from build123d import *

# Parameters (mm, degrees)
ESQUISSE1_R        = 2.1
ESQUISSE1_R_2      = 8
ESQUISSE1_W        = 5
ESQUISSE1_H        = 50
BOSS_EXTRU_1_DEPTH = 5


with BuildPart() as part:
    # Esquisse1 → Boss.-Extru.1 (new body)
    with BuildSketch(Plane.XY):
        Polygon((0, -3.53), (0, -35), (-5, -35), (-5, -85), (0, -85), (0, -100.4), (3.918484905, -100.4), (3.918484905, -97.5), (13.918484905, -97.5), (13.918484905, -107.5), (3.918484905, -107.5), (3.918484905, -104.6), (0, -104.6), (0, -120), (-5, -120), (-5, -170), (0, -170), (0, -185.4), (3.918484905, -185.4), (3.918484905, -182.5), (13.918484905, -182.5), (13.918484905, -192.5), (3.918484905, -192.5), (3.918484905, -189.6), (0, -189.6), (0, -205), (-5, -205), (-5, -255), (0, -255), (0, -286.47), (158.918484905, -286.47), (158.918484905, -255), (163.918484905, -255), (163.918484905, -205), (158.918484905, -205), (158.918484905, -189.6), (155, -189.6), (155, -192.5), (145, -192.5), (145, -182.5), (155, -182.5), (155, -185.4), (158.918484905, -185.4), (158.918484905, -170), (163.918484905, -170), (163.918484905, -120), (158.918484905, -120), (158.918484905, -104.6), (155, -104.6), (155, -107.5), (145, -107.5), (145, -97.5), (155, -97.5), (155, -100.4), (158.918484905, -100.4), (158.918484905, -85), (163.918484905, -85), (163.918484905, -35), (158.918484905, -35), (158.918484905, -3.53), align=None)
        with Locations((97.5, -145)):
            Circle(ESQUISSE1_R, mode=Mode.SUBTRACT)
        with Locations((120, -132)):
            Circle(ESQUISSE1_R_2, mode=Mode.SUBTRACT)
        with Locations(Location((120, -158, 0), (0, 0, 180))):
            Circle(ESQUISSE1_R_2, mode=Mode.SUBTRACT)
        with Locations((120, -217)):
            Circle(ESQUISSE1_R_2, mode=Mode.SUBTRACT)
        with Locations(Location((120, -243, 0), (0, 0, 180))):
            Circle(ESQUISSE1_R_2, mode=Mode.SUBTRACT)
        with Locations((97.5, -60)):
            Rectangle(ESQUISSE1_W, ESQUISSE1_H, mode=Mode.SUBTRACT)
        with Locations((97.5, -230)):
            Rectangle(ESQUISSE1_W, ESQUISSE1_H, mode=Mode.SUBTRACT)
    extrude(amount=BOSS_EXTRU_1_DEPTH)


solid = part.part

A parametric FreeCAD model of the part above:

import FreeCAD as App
import Part
import Sketcher
from FreeCAD import Vector

doc = App.newDocument("Part")
body = doc.addObject("PartDesign::Body", "Body")

# Sketch on XY plane
sketch1 = doc.addObject("Sketcher::SketchObject", "Sketch")
body.addObject(sketch1)
sketch1.AttachmentSupport = (doc.XY_Plane, [""])
sketch1.MapMode = "FlatFace"
sketch1.addGeometry([
    Part.LineSegment(Vector(0, -3.5, 0), Vector(0, -35, 0)),  # 0
    Part.LineSegment(Vector(0, -35, 0), Vector(-5, -35, 0)),  # 1
    Part.LineSegment(Vector(-5, -35, 0), Vector(-5, -85, 0)),  # 2
    Part.LineSegment(Vector(-5, -85, 0), Vector(0, -85, 0)),  # 3
    Part.LineSegment(Vector(0, -85, 0), Vector(0, -100.4, 0)),  # 4
    Part.LineSegment(Vector(0, -100.4, 0), Vector(3.9, -100.4, 0)),  # 5
    Part.LineSegment(Vector(3.9, -100.4, 0), Vector(3.9, -97.5, 0)),  # 6
    Part.LineSegment(Vector(3.9, -97.5, 0), Vector(13.9, -97.5, 0)),  # 7
    Part.LineSegment(Vector(13.9, -97.5, 0), Vector(13.9, -107.5, 0)),  # 8
    Part.LineSegment(Vector(13.9, -107.5, 0), Vector(3.9, -107.5, 0)),  # 9
    Part.LineSegment(Vector(3.9, -107.5, 0), Vector(3.9, -104.6, 0)),  # 10
    Part.LineSegment(Vector(3.9, -104.6, 0), Vector(0, -104.6, 0)),  # 11
    Part.LineSegment(Vector(0, -104.6, 0), Vector(0, -120, 0)),  # 12
    Part.LineSegment(Vector(0, -120, 0), Vector(-5, -120, 0)),  # 13
    Part.LineSegment(Vector(-5, -120, 0), Vector(-5, -170, 0)),  # 14
    Part.LineSegment(Vector(-5, -170, 0), Vector(0, -170, 0)),  # 15
    Part.LineSegment(Vector(0, -170, 0), Vector(0, -185.4, 0)),  # 16
    Part.LineSegment(Vector(0, -185.4, 0), Vector(3.9, -185.4, 0)),  # 17
    Part.LineSegment(Vector(3.9, -185.4, 0), Vector(3.9, -182.5, 0)),  # 18
    Part.LineSegment(Vector(3.9, -182.5, 0), Vector(13.9, -182.5, 0)),  # 19
    Part.LineSegment(Vector(13.9, -182.5, 0), Vector(13.9, -192.5, 0)),  # 20
    Part.LineSegment(Vector(13.9, -192.5, 0), Vector(3.9, -192.5, 0)),  # 21
    Part.LineSegment(Vector(3.9, -192.5, 0), Vector(3.9, -189.6, 0)),  # 22
    Part.LineSegment(Vector(3.9, -189.6, 0), Vector(0, -189.6, 0)),  # 23
    Part.LineSegment(Vector(0, -189.6, 0), Vector(0, -205, 0)),  # 24
    Part.LineSegment(Vector(0, -205, 0), Vector(-5, -205, 0)),  # 25
    Part.LineSegment(Vector(-5, -205, 0), Vector(-5, -255, 0)),  # 26
    Part.LineSegment(Vector(-5, -255, 0), Vector(0, -255, 0)),  # 27
    Part.LineSegment(Vector(0, -255, 0), Vector(0, -286.5, 0)),  # 28
    Part.LineSegment(Vector(0, -286.5, 0), Vector(158.9, -286.5, 0)),  # 29
    Part.LineSegment(Vector(158.9, -286.5, 0), Vector(158.9, -255, 0)),  # 30
    Part.LineSegment(Vector(158.9, -255, 0), Vector(163.9, -255, 0)),  # 31
    Part.LineSegment(Vector(163.9, -255, 0), Vector(163.9, -205, 0)),  # 32
    Part.LineSegment(Vector(163.9, -205, 0), Vector(158.9, -205, 0)),  # 33
    Part.LineSegment(Vector(158.9, -205, 0), Vector(158.9, -189.6, 0)),  # 34
    Part.LineSegment(Vector(158.9, -189.6, 0), Vector(155, -189.6, 0)),  # 35
    Part.LineSegment(Vector(155, -189.6, 0), Vector(155, -192.5, 0)),  # 36
    Part.LineSegment(Vector(155, -192.5, 0), Vector(145, -192.5, 0)),  # 37
    Part.LineSegment(Vector(145, -192.5, 0), Vector(145, -182.5, 0)),  # 38
    Part.LineSegment(Vector(145, -182.5, 0), Vector(155, -182.5, 0)),  # 39
    Part.LineSegment(Vector(155, -182.5, 0), Vector(155, -185.4, 0)),  # 40
    Part.LineSegment(Vector(155, -185.4, 0), Vector(158.9, -185.4, 0)),  # 41
    Part.LineSegment(Vector(158.9, -185.4, 0), Vector(158.9, -170, 0)),  # 42
    Part.LineSegment(Vector(158.9, -170, 0), Vector(163.9, -170, 0)),  # 43
    Part.LineSegment(Vector(163.9, -170, 0), Vector(163.9, -120, 0)),  # 44
    Part.LineSegment(Vector(163.9, -120, 0), Vector(158.9, -120, 0)),  # 45
    Part.LineSegment(Vector(158.9, -120, 0), Vector(158.9, -104.6, 0)),  # 46
    Part.LineSegment(Vector(158.9, -104.6, 0), Vector(155, -104.6, 0)),  # 47
    Part.LineSegment(Vector(155, -104.6, 0), Vector(155, -107.5, 0)),  # 48
    Part.LineSegment(Vector(155, -107.5, 0), Vector(145, -107.5, 0)),  # 49
    Part.LineSegment(Vector(145, -107.5, 0), Vector(145, -97.5, 0)),  # 50
    Part.LineSegment(Vector(145, -97.5, 0), Vector(155, -97.5, 0)),  # 51
    Part.LineSegment(Vector(155, -97.5, 0), Vector(155, -100.4, 0)),  # 52
    Part.LineSegment(Vector(155, -100.4, 0), Vector(158.9, -100.4, 0)),  # 53
    Part.LineSegment(Vector(158.9, -100.4, 0), Vector(158.9, -85, 0)),  # 54
    Part.LineSegment(Vector(158.9, -85, 0), Vector(163.9, -85, 0)),  # 55
    Part.LineSegment(Vector(163.9, -85, 0), Vector(163.9, -35, 0)),  # 56
    Part.LineSegment(Vector(163.9, -35, 0), Vector(158.9, -35, 0)),  # 57
    Part.LineSegment(Vector(158.9, -35, 0), Vector(158.9, -3.5, 0)),  # 58
    Part.LineSegment(Vector(158.9, -3.5, 0), Vector(0, -3.5, 0)),  # 59
    Part.LineSegment(Vector(100, -255, 0), Vector(95, -255, 0)),  # 60
    Part.LineSegment(Vector(95, -255, 0), Vector(95, -205, 0)),  # 61
    Part.LineSegment(Vector(95, -205, 0), Vector(100, -205, 0)),  # 62
    Part.LineSegment(Vector(100, -205, 0), Vector(100, -255, 0)),  # 63
    Part.Circle(Vector(120, -243, 0), Vector(0, 0, 1), 8),  # 64
    Part.Circle(Vector(120, -217, 0), Vector(0, 0, 1), 8),  # 65
    Part.Circle(Vector(120, -158, 0), Vector(0, 0, 1), 8),  # 66
    Part.Circle(Vector(97.5, -145, 0), Vector(0, 0, 1), 2.1),  # 67
    Part.LineSegment(Vector(100, -85, 0), Vector(95, -85, 0)),  # 68
    Part.LineSegment(Vector(95, -85, 0), Vector(95, -35, 0)),  # 69
    Part.LineSegment(Vector(95, -35, 0), Vector(100, -35, 0)),  # 70
    Part.LineSegment(Vector(100, -35, 0), Vector(100, -85, 0)),  # 71
    Part.Circle(Vector(120, -132, 0), Vector(0, 0, 1), 8),  # 72
], False)
sketch1.addConstraint([
    Sketcher.Constraint("Coincident", 0, 2, 1, 1),
    Sketcher.Constraint("Coincident", 1, 2, 2, 1),
    Sketcher.Constraint("Coincident", 2, 2, 3, 1),
    Sketcher.Constraint("Coincident", 3, 2, 4, 1),
    Sketcher.Constraint("Coincident", 4, 2, 5, 1),
    Sketcher.Constraint("Coincident", 5, 2, 6, 1),
    Sketcher.Constraint("Coincident", 6, 2, 7, 1),
    Sketcher.Constraint("Coincident", 7, 2, 8, 1),
    Sketcher.Constraint("Coincident", 8, 2, 9, 1),
    Sketcher.Constraint("Coincident", 9, 2, 10, 1),
    Sketcher.Constraint("Coincident", 10, 2, 11, 1),
    Sketcher.Constraint("Coincident", 11, 2, 12, 1),
    Sketcher.Constraint("Coincident", 12, 2, 13, 1),
    Sketcher.Constraint("Coincident", 13, 2, 14, 1),
    Sketcher.Constraint("Coincident", 14, 2, 15, 1),
    Sketcher.Constraint("Coincident", 15, 2, 16, 1),
    Sketcher.Constraint("Coincident", 16, 2, 17, 1),
    Sketcher.Constraint("Coincident", 17, 2, 18, 1),
    Sketcher.Constraint("Coincident", 18, 2, 19, 1),
    Sketcher.Constraint("Coincident", 19, 2, 20, 1),
    Sketcher.Constraint("Coincident", 20, 2, 21, 1),
    Sketcher.Constraint("Coincident", 21, 2, 22, 1),
    Sketcher.Constraint("Coincident", 22, 2, 23, 1),
    Sketcher.Constraint("Coincident", 23, 2, 24, 1),
    Sketcher.Constraint("Coincident", 24, 2, 25, 1),
    Sketcher.Constraint("Coincident", 25, 2, 26, 1),
    Sketcher.Constraint("Coincident", 26, 2, 27, 1),
    Sketcher.Constraint("Coincident", 27, 2, 28, 1),
    Sketcher.Constraint("Coincident", 28, 2, 29, 1),
    Sketcher.Constraint("Coincident", 29, 2, 30, 1),
    Sketcher.Constraint("Coincident", 30, 2, 31, 1),
    Sketcher.Constraint("Coincident", 31, 2, 32, 1),
    Sketcher.Constraint("Coincident", 32, 2, 33, 1),
    Sketcher.Constraint("Coincident", 33, 2, 34, 1),
    Sketcher.Constraint("Coincident", 34, 2, 35, 1),
    Sketcher.Constraint("Coincident", 35, 2, 36, 1),
    Sketcher.Constraint("Coincident", 36, 2, 37, 1),
    Sketcher.Constraint("Coincident", 37, 2, 38, 1),
    Sketcher.Constraint("Coincident", 38, 2, 39, 1),
    Sketcher.Constraint("Coincident", 39, 2, 40, 1),
    Sketcher.Constraint("Coincident", 40, 2, 41, 1),
    Sketcher.Constraint("Coincident", 41, 2, 42, 1),
    Sketcher.Constraint("Coincident", 42, 2, 43, 1),
    Sketcher.Constraint("Coincident", 43, 2, 44, 1),
    Sketcher.Constraint("Coincident", 44, 2, 45, 1),
    Sketcher.Constraint("Coincident", 45, 2, 46, 1),
    Sketcher.Constraint("Coincident", 46, 2, 47, 1),
    Sketcher.Constraint("Coincident", 47, 2, 48, 1),
    Sketcher.Constraint("Coincident", 48, 2, 49, 1),
    Sketcher.Constraint("Coincident", 49, 2, 50, 1),
    Sketcher.Constraint("Coincident", 50, 2, 51, 1),
    Sketcher.Constraint("Coincident", 51, 2, 52, 1),
    Sketcher.Constraint("Coincident", 52, 2, 53, 1),
    Sketcher.Constraint("Coincident", 53, 2, 54, 1),
    Sketcher.Constraint("Coincident", 54, 2, 55, 1),
    Sketcher.Constraint("Coincident", 55, 2, 56, 1),
    Sketcher.Constraint("Coincident", 56, 2, 57, 1),
    Sketcher.Constraint("Coincident", 57, 2, 58, 1),
    Sketcher.Constraint("Coincident", 58, 2, 59, 1),
    Sketcher.Constraint("Coincident", 59, 2, 0, 1),
    Sketcher.Constraint("Coincident", 60, 2, 61, 1),
    Sketcher.Constraint("Coincident", 61, 2, 62, 1),
    Sketcher.Constraint("Coincident", 62, 2, 63, 1),
    Sketcher.Constraint("Coincident", 63, 2, 60, 1),
    Sketcher.Constraint("Coincident", 68, 2, 69, 1),
    Sketcher.Constraint("Coincident", 69, 2, 70, 1),
    Sketcher.Constraint("Coincident", 70, 2, 71, 1),
    Sketcher.Constraint("Coincident", 71, 2, 68, 1),
    Sketcher.Constraint("Vertical", 0),
    Sketcher.Constraint("Horizontal", 1),
    Sketcher.Constraint("Vertical", 2),
    Sketcher.Constraint("Horizontal", 3),
    Sketcher.Constraint("Vertical", 4),
    Sketcher.Constraint("Horizontal", 5),
    Sketcher.Constraint("Vertical", 6),
    Sketcher.Constraint("Horizontal", 7),
    Sketcher.Constraint("Vertical", 8),
    Sketcher.Constraint("Horizontal", 9),
    Sketcher.Constraint("Vertical", 10),
    Sketcher.Constraint("Horizontal", 11),
    Sketcher.Constraint("Vertical", 12),
    Sketcher.Constraint("Horizontal", 13),
    Sketcher.Constraint("Vertical", 14),
    Sketcher.Constraint("Horizontal", 15),
    Sketcher.Constraint("Vertical", 16),
    Sketcher.Constraint("Horizontal", 17),
    Sketcher.Constraint("Vertical", 18),
    Sketcher.Constraint("Horizontal", 19),
    Sketcher.Constraint("Vertical", 20),
    Sketcher.Constraint("Horizontal", 21),
    Sketcher.Constraint("Vertical", 22),
    Sketcher.Constraint("Horizontal", 23),
    Sketcher.Constraint("Vertical", 24),
    Sketcher.Constraint("Horizontal", 25),
    Sketcher.Constraint("Vertical", 26),
    Sketcher.Constraint("Horizontal", 27),
    Sketcher.Constraint("Vertical", 28),
    Sketcher.Constraint("Horizontal", 29),
    Sketcher.Constraint("Vertical", 30),
    Sketcher.Constraint("Horizontal", 31),
    Sketcher.Constraint("Vertical", 32),
    Sketcher.Constraint("Horizontal", 33),
    Sketcher.Constraint("Vertical", 34),
    Sketcher.Constraint("Horizontal", 35),
    Sketcher.Constraint("Vertical", 36),
    Sketcher.Constraint("Horizontal", 37),
    Sketcher.Constraint("Vertical", 38),
    Sketcher.Constraint("Horizontal", 39),
    Sketcher.Constraint("Vertical", 40),
    Sketcher.Constraint("Horizontal", 41),
    Sketcher.Constraint("Vertical", 42),
    Sketcher.Constraint("Horizontal", 43),
    Sketcher.Constraint("Vertical", 44),
    Sketcher.Constraint("Horizontal", 45),
    Sketcher.Constraint("Vertical", 46),
    Sketcher.Constraint("Horizontal", 47),
    Sketcher.Constraint("Vertical", 48),
    Sketcher.Constraint("Horizontal", 49),
    Sketcher.Constraint("Vertical", 50),
    Sketcher.Constraint("Horizontal", 51),
    Sketcher.Constraint("Vertical", 52),
    Sketcher.Constraint("Horizontal", 53),
    Sketcher.Constraint("Vertical", 54),
    Sketcher.Constraint("Horizontal", 55),
    Sketcher.Constraint("Vertical", 56),
    Sketcher.Constraint("Horizontal", 57),
    Sketcher.Constraint("Vertical", 58),
    Sketcher.Constraint("Horizontal", 59),
    Sketcher.Constraint("Horizontal", 60),
    Sketcher.Constraint("Vertical", 61),
    Sketcher.Constraint("Horizontal", 62),
    Sketcher.Constraint("Vertical", 63),
    Sketcher.Constraint("Horizontal", 68),
    Sketcher.Constraint("Vertical", 69),
    Sketcher.Constraint("Horizontal", 70),
    Sketcher.Constraint("Vertical", 71),
    Sketcher.Constraint("Equal", 64, 65),
    Sketcher.Constraint("Equal", 65, 66),
    Sketcher.Constraint("Equal", 66, 72),
    Sketcher.Constraint("PointOnObject", 0, 2, -2),
    Sketcher.Constraint("PointOnObject", 3, 2, -2),
    Sketcher.Constraint("PointOnObject", 11, 2, -2),
    Sketcher.Constraint("PointOnObject", 15, 2, -2),
    Sketcher.Constraint("PointOnObject", 23, 2, -2),
    Sketcher.Constraint("PointOnObject", 27, 2, -2),
    Sketcher.Constraint("Horizontal", 27, 2, 30, 2),
    Sketcher.Constraint("Horizontal", 25, 2, 32, 2),
    Sketcher.Constraint("Horizontal", 23, 2, 34, 2),
    Sketcher.Constraint("Horizontal", 21, 2, 36, 2),
    Sketcher.Constraint("Horizontal", 19, 2, 38, 2),
    Sketcher.Constraint("Horizontal", 17, 2, 40, 2),
    Sketcher.Constraint("Horizontal", 15, 2, 42, 2),
    Sketcher.Constraint("Horizontal", 13, 2, 44, 2),
    Sketcher.Constraint("Horizontal", 11, 2, 46, 2),
    Sketcher.Constraint("Horizontal", 9, 2, 48, 2),
    Sketcher.Constraint("Horizontal", 7, 2, 50, 2),
    Sketcher.Constraint("Horizontal", 5, 2, 52, 2),
    Sketcher.Constraint("Horizontal", 3, 2, 54, 2),
    Sketcher.Constraint("Horizontal", 1, 2, 56, 2),
    Sketcher.Constraint("Horizontal", 31, 2, 60, 2),
    Sketcher.Constraint("Horizontal", 33, 2, 61, 2),
    Sketcher.Constraint("Horizontal", 55, 2, 68, 2),
    Sketcher.Constraint("Horizontal", 57, 2, 69, 2),
    Sketcher.Constraint("Vertical", 64, 3, 65, 3),
    Sketcher.Constraint("Vertical", 65, 3, 66, 3),
    Sketcher.Constraint("Vertical", 66, 3, 72, 3),
    Sketcher.Constraint("Vertical", 6, 2, 9, 2),
    Sketcher.Constraint("Vertical", 2, 2, 13, 2),
    Sketcher.Constraint("Vertical", 10, 2, 17, 2),
    Sketcher.Constraint("Vertical", 8, 2, 19, 2),
    Sketcher.Constraint("Vertical", 18, 2, 21, 2),
    Sketcher.Constraint("Vertical", 14, 2, 25, 2),
    Sketcher.Constraint("Vertical", 30, 2, 33, 2),
    Sketcher.Constraint("Vertical", 36, 2, 39, 2),
    Sketcher.Constraint("Vertical", 34, 2, 41, 2),
    Sketcher.Constraint("Vertical", 32, 2, 43, 2),
    Sketcher.Constraint("Vertical", 42, 2, 45, 2),
    Sketcher.Constraint("Vertical", 40, 2, 47, 2),
    Sketcher.Constraint("Vertical", 38, 2, 49, 2),
    Sketcher.Constraint("Vertical", 48, 2, 51, 2),
    Sketcher.Constraint("Vertical", 46, 2, 53, 2),
    Sketcher.Constraint("Vertical", 44, 2, 55, 2),
    Sketcher.Constraint("Vertical", 54, 2, 57, 2),
    Sketcher.Constraint("Vertical", 61, 2, 68, 2),
    Sketcher.Constraint("Vertical", 63, 2, 70, 2),
    Sketcher.Constraint("Equal", 27, 31),
    Sketcher.Constraint("Equal", 23, 35),
    Sketcher.Constraint("Equal", 21, 37),
    Sketcher.Constraint("Equal", 57, 60),
    Sketcher.Constraint("Equal", 51, 8),
    Sketcher.Constraint("Equal", 6, 10),
    Sketcher.Constraint("Equal", 4, 12),
    Sketcher.Constraint("Equal", 2, 14),
    Sketcher.Constraint("Equal", 12, 16),
    Sketcher.Constraint("Equal", 10, 18),
    Sketcher.Constraint("Equal", 8, 20),
    Sketcher.Constraint("Equal", 18, 22),
    Sketcher.Constraint("Equal", 16, 24),
    Sketcher.Constraint("Equal", 14, 26),
    Sketcher.Constraint("Equal", 0, 28),
    Sketcher.Constraint("Diameter", 64, 16.0),
    Sketcher.Constraint("Diameter", 67, 4.2),
    Sketcher.Constraint("DistanceX", 1, 2, 1, 1, 5.0),
    Sketcher.Constraint("DistanceX", 7, 1, 7, 2, 10.0),
    Sketcher.Constraint("DistanceY", 2, 2, 2, 1, 50.0),
    Sketcher.Constraint("DistanceY", 4, 2, 4, 1, 15.4),
    Sketcher.Constraint("DistanceY", 6, 1, 6, 2, 2.9),
    Sketcher.Constraint("DistanceX", -1, 1, 64, 3, 120.0),
    Sketcher.Constraint("DistanceY", 64, 3, -1, 1, 243.0),
    Sketcher.Constraint("DistanceY", 65, 3, -1, 1, 217.0),
    Sketcher.Constraint("DistanceY", 66, 3, -1, 1, 158.0),
    Sketcher.Constraint("DistanceY", 67, 3, -1, 1, 145.0),
    Sketcher.Constraint("DistanceY", 72, 3, -1, 1, 132.0),
    Sketcher.Constraint("DistanceY", 0, 2, -1, 1, 35.0),
    Sketcher.Constraint("DistanceX", -1, 1, 35, 2, 155.0),
    Sketcher.Constraint("DistanceX", -1, 1, 60, 2, 95.0),
    Sketcher.Constraint("DistanceY", 0, 2, 0, 1, 31.47),
    Sketcher.Constraint("DistanceX", -1, 1, 67, 3, 97.5),
    Sketcher.Constraint("DistanceX", 5, 1, 5, 2, 3.918485),
])
pad1 = doc.addObject("PartDesign::Pad", "Pad")
body.addObject(pad1)
pad1.Profile = sketch1
pad1.Length = 5

doc.recompute()
